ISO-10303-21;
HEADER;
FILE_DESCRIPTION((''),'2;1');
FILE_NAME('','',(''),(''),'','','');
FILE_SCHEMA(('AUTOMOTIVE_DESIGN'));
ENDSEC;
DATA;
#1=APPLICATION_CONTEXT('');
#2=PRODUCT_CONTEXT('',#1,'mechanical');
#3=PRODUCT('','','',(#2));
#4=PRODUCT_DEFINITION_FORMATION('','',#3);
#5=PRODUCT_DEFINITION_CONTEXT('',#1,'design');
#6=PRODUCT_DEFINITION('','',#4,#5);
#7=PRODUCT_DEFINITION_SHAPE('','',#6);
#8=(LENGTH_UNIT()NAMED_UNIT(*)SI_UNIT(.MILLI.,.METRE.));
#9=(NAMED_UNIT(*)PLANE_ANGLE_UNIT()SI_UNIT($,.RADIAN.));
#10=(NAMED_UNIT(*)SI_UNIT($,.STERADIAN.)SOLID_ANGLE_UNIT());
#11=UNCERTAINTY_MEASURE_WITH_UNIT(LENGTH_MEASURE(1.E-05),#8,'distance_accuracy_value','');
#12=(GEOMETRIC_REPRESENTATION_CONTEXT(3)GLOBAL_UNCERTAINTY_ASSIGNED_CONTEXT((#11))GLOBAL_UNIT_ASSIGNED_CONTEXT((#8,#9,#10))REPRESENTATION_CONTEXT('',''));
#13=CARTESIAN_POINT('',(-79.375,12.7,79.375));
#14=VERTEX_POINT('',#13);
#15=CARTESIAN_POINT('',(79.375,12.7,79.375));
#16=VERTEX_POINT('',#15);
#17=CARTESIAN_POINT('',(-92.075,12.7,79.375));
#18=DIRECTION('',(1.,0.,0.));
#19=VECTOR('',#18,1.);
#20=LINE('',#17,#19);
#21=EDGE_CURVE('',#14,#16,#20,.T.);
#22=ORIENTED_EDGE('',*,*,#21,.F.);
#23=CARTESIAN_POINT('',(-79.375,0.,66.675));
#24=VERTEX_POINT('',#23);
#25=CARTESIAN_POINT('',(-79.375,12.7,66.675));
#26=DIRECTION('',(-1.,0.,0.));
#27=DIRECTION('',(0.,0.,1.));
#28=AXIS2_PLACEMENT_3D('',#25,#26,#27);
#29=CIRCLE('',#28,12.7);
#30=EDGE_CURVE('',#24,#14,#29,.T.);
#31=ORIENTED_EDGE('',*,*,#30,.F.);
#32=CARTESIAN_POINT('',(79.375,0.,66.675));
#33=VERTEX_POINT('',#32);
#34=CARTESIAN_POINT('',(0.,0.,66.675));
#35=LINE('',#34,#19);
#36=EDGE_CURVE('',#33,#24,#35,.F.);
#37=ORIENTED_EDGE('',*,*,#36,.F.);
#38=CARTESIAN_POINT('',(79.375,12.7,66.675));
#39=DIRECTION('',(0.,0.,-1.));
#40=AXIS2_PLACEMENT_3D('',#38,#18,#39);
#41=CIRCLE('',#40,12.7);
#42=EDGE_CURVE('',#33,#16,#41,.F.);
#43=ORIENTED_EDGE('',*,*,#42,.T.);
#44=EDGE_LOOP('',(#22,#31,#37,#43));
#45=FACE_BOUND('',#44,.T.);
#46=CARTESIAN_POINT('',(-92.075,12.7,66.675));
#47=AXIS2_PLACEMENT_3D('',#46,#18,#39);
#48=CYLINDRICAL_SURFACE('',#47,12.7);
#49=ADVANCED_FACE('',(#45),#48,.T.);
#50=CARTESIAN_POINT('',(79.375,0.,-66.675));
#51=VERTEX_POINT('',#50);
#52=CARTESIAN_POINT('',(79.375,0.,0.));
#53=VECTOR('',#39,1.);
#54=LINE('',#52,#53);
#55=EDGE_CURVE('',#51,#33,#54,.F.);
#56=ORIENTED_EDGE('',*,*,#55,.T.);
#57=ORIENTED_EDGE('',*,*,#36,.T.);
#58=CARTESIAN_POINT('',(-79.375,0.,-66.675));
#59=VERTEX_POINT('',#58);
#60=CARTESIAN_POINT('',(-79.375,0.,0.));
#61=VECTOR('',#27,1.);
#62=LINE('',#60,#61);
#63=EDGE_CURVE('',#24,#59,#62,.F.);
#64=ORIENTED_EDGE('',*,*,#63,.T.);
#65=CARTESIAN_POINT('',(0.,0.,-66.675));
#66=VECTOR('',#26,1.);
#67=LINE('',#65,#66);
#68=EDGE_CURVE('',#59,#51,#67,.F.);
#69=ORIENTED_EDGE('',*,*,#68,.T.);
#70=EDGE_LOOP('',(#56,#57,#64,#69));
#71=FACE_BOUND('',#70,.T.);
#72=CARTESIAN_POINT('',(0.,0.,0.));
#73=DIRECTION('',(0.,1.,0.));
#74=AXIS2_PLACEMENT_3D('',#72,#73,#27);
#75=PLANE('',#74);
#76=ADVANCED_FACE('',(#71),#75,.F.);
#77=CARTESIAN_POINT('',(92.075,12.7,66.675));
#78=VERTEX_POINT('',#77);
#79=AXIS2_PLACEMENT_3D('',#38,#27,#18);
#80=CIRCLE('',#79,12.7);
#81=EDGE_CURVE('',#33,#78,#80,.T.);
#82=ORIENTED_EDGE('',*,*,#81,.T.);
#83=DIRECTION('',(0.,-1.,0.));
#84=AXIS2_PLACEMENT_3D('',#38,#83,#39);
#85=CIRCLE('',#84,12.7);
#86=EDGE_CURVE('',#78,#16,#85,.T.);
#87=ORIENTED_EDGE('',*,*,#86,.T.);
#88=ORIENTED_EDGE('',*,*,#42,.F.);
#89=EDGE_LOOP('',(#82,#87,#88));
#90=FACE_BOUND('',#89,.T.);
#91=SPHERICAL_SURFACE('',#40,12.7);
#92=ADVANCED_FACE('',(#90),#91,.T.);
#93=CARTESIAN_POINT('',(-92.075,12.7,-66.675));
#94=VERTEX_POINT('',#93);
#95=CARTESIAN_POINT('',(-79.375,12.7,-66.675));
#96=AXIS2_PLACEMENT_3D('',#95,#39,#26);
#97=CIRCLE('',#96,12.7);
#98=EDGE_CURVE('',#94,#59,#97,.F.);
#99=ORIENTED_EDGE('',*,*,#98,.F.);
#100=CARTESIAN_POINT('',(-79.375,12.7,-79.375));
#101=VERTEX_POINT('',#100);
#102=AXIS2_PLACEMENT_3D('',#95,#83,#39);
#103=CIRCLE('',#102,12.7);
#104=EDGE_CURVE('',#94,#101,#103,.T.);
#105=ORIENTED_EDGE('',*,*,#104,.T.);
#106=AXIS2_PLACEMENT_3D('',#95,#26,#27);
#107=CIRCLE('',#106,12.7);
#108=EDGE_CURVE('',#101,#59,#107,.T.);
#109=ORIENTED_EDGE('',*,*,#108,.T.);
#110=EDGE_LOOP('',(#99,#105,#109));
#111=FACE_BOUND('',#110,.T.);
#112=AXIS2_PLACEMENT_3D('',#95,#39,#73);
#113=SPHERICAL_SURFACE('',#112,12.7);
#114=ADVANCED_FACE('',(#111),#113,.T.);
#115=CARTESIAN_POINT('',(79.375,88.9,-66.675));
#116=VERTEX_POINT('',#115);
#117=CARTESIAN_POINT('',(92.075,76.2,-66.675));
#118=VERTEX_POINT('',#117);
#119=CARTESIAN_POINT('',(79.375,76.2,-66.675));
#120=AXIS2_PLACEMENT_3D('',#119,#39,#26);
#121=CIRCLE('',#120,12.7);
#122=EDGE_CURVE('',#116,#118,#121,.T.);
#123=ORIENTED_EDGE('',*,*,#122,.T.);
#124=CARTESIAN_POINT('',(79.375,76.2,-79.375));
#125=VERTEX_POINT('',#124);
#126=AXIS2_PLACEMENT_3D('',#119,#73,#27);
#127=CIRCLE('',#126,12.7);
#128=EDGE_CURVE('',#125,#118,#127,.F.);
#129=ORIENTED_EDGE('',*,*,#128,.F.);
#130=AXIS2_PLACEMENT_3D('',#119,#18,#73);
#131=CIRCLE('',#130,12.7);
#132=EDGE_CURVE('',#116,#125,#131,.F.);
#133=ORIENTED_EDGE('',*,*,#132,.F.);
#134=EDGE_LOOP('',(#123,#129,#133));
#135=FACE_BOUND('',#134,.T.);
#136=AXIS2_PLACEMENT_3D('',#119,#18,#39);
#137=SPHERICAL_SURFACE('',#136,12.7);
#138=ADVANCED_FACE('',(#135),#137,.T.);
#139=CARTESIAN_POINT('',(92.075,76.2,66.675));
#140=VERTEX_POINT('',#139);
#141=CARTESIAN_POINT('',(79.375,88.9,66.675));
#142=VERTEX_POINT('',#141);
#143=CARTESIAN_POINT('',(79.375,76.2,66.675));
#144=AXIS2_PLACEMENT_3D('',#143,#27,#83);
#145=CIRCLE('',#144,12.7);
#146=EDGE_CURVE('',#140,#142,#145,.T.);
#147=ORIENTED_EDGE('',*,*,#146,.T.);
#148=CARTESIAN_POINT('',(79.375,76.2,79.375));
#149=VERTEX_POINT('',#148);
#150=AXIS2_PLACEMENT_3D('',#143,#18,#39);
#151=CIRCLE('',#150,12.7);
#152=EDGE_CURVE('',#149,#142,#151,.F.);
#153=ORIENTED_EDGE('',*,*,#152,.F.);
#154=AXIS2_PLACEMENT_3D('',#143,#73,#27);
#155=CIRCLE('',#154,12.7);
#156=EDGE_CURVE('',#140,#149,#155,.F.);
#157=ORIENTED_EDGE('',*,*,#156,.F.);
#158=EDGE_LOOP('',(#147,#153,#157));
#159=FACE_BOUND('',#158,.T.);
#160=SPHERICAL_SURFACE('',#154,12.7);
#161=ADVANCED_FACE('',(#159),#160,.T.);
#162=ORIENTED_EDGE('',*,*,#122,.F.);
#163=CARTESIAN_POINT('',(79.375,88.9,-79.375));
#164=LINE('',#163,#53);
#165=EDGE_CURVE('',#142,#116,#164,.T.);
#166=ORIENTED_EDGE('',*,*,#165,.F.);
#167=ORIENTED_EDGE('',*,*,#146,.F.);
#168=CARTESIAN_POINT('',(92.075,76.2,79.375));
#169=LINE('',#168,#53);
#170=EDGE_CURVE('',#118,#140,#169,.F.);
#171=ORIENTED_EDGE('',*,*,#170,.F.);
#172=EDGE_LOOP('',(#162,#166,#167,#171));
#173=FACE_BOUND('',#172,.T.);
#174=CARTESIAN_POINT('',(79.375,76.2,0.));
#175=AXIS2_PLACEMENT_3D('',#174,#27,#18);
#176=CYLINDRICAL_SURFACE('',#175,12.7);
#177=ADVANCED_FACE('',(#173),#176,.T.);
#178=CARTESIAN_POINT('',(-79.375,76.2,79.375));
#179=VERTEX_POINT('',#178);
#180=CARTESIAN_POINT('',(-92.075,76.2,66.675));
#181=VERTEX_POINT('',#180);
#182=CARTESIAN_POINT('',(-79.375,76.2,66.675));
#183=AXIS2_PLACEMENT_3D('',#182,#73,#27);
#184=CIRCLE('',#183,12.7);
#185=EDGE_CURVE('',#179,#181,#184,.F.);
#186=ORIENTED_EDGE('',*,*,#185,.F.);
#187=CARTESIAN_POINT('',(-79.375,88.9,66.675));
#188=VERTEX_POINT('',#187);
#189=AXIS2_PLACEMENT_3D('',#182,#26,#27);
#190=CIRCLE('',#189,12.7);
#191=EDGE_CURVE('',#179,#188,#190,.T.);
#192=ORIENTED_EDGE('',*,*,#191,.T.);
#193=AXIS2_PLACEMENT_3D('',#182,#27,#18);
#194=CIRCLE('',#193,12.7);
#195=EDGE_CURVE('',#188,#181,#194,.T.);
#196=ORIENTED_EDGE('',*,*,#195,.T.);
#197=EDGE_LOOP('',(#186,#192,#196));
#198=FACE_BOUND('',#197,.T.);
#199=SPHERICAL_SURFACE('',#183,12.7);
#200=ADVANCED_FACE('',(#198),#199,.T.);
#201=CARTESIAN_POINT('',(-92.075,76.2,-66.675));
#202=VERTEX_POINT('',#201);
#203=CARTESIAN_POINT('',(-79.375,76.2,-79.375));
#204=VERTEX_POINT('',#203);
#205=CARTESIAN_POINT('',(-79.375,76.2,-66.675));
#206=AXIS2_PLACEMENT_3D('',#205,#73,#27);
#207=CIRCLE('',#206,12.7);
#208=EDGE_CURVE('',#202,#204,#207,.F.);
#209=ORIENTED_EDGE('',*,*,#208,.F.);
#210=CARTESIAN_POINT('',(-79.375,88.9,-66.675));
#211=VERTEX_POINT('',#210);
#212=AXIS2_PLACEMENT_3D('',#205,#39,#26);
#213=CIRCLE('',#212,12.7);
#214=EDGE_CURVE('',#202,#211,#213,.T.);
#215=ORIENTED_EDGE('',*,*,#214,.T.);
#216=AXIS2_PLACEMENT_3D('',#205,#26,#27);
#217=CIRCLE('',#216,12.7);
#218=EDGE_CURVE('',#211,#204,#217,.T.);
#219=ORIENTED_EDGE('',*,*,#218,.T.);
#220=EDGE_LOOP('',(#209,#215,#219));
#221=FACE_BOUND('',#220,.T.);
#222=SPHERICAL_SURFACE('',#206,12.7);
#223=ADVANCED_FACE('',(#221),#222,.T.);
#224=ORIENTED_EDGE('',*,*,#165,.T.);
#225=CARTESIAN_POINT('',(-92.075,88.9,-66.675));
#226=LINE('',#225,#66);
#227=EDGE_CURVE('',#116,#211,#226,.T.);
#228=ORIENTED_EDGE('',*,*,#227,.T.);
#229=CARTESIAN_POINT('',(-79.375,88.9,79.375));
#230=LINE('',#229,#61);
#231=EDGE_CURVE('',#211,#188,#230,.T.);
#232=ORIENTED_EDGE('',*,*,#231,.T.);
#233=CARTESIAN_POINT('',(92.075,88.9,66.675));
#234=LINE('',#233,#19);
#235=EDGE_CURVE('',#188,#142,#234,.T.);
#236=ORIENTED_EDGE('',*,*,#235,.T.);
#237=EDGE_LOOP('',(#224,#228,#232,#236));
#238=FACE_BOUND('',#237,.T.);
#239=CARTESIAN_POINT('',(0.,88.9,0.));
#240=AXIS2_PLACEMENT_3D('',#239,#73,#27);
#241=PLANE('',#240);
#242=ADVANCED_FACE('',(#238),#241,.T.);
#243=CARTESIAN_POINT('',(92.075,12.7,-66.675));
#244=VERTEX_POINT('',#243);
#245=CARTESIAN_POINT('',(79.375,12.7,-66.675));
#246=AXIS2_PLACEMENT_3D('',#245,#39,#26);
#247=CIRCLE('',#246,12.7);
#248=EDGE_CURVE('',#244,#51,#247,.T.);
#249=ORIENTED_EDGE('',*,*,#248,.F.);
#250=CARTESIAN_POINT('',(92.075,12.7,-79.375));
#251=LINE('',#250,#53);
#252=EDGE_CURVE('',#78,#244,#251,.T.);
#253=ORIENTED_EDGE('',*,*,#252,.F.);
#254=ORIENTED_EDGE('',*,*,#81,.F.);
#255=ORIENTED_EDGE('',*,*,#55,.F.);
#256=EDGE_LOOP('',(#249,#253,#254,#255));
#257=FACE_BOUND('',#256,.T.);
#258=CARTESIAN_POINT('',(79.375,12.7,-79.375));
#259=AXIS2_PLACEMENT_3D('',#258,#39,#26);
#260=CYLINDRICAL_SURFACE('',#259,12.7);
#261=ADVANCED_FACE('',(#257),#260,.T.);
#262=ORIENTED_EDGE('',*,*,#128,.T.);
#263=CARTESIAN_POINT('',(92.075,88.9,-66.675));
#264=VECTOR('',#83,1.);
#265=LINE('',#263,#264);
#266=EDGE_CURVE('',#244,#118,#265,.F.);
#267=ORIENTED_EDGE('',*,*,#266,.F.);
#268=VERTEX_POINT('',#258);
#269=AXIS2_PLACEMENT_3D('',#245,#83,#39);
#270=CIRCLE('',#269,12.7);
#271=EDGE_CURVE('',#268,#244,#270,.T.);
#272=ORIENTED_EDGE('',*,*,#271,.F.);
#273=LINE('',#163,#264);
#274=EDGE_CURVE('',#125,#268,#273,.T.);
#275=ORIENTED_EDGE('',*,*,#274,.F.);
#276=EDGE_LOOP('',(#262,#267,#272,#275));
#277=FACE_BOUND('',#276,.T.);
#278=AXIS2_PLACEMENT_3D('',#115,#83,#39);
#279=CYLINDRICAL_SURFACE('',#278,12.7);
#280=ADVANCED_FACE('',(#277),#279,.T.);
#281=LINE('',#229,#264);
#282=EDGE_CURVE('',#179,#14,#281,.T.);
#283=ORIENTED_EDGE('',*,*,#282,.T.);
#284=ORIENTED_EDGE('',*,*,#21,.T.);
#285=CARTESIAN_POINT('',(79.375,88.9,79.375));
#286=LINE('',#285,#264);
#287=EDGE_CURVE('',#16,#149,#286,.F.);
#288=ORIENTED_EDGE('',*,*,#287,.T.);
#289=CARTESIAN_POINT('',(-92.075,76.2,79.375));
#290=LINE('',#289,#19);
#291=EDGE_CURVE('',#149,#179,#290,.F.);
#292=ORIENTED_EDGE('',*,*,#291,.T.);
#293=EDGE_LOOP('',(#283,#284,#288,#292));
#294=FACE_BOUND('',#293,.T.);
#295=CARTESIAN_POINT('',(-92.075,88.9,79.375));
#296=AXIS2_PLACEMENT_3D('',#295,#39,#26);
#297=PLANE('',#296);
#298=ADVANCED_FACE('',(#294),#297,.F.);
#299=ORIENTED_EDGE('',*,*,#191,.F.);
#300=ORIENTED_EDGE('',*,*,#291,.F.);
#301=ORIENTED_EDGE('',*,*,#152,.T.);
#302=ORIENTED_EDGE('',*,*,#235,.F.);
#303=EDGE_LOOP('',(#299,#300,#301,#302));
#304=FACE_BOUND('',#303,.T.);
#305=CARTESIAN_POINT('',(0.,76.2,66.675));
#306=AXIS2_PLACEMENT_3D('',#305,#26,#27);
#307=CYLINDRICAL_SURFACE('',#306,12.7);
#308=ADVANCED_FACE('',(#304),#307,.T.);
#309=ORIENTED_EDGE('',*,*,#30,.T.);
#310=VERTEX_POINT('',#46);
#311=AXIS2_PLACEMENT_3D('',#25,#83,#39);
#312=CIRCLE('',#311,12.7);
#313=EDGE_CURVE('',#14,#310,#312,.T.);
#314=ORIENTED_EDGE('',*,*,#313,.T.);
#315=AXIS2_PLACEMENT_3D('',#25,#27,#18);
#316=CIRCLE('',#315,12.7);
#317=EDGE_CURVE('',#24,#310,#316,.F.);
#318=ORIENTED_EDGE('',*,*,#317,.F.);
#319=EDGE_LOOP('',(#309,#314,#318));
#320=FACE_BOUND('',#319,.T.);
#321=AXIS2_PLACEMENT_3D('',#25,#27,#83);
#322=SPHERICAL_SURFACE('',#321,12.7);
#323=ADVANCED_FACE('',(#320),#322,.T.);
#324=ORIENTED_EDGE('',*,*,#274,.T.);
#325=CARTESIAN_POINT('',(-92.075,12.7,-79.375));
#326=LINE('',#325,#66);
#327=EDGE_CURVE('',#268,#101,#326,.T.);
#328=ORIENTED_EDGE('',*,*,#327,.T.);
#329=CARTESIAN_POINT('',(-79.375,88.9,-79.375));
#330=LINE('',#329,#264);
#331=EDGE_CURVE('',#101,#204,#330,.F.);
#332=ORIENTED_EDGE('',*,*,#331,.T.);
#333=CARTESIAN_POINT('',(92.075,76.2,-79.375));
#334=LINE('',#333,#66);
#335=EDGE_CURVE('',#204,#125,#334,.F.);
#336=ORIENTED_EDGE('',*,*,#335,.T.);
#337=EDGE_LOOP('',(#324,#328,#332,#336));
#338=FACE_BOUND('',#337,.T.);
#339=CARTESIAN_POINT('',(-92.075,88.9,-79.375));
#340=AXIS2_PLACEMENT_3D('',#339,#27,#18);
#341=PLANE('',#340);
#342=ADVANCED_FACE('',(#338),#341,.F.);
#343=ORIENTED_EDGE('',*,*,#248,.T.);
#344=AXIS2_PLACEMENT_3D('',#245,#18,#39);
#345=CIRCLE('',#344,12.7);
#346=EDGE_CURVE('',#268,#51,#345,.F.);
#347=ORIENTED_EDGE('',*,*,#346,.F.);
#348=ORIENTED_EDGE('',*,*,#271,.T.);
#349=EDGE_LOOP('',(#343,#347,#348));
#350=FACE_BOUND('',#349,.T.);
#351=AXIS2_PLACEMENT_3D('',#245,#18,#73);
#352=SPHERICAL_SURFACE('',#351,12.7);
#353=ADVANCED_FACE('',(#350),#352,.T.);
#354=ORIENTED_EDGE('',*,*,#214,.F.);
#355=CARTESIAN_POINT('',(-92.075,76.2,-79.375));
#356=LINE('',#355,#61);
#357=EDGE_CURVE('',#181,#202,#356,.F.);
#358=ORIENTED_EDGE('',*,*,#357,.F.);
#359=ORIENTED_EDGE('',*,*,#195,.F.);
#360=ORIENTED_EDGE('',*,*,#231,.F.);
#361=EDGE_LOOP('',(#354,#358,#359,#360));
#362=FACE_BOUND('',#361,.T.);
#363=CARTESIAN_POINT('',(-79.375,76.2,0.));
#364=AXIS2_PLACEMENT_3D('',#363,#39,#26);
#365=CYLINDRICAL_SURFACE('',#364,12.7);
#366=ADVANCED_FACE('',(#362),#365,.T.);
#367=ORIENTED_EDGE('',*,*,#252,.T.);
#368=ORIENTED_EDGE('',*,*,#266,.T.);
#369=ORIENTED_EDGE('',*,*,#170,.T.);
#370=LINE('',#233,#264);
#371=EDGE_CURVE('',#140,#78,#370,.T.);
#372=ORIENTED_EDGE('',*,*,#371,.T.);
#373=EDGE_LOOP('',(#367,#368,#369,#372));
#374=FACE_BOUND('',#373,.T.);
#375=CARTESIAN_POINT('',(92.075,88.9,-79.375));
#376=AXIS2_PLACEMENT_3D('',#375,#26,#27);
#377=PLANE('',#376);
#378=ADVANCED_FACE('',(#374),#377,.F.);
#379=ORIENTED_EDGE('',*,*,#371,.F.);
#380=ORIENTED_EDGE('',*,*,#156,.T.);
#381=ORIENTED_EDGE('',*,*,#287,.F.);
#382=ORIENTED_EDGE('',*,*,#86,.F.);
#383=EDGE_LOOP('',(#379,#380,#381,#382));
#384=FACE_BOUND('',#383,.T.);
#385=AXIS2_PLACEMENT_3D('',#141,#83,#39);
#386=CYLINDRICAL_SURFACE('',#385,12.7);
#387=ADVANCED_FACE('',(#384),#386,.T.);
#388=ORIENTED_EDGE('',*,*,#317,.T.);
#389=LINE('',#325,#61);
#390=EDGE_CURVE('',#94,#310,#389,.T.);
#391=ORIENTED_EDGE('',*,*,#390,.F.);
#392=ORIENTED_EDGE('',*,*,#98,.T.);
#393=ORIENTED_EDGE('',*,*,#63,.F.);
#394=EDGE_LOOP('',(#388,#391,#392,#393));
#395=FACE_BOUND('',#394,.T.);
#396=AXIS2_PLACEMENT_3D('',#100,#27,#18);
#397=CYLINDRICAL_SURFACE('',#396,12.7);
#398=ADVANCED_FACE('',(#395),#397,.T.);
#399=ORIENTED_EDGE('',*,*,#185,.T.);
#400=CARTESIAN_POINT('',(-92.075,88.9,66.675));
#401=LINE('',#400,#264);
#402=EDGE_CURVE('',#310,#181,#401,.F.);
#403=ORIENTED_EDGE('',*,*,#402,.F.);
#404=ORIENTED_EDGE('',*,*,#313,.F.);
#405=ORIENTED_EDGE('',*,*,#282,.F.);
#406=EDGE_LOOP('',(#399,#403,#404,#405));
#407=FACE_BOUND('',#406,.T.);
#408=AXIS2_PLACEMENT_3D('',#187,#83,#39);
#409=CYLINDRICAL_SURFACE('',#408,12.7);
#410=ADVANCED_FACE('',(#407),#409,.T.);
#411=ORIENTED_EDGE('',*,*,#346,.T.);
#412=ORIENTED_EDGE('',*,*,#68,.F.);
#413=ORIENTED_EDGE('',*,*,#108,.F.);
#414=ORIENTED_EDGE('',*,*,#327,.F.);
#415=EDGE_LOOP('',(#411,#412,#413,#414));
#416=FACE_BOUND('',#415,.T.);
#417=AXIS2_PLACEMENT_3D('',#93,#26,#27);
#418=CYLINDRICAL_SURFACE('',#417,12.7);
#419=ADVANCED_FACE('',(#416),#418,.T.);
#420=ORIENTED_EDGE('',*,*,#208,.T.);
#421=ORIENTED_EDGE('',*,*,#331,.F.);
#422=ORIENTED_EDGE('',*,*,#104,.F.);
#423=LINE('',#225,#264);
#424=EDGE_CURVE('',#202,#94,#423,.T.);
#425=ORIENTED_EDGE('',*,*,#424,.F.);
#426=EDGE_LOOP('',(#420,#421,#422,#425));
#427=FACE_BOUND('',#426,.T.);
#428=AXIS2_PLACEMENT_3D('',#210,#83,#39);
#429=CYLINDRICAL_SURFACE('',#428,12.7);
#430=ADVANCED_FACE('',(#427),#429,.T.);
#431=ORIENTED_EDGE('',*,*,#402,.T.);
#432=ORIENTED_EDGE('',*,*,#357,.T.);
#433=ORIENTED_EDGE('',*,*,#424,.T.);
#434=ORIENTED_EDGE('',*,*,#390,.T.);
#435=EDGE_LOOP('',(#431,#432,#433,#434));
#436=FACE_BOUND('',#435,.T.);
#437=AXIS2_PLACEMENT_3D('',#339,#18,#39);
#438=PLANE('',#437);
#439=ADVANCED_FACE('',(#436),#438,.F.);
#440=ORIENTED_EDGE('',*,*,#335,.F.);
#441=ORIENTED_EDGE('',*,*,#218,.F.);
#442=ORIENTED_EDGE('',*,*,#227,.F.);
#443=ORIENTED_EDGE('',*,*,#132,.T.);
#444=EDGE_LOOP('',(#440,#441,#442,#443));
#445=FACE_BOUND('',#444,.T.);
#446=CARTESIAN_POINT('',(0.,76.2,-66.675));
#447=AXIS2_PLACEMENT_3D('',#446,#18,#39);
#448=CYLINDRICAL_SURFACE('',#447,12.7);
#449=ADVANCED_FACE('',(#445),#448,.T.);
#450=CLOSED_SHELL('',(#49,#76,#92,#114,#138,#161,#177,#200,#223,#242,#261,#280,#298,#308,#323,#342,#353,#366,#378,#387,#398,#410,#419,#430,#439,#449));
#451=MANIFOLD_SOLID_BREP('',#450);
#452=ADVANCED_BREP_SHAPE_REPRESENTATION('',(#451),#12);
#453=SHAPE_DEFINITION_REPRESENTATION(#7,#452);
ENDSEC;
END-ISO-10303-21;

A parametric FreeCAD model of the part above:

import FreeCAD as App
import Part
import Sketcher
Q = App.Units.Quantity


def add_polygon(sketch, points):
    """Adds a closed chain of lines whose ends are joined by coincident constraints."""
    first, n = sketch.GeometryCount, len(points)
    for a, b in zip(points, points[1:] + points[:1]):
        sketch.addGeometry(Part.LineSegment(App.Vector(*a, 0), App.Vector(*b, 0)), False)
    for i in range(n):
        sketch.addConstraint(Sketcher.Constraint("Coincident", first + i, 2, first + (i + 1) % n, 1))

doc = App.newDocument("Part")
body = doc.addObject("PartDesign::Body", "Body")

# Sketch on XZ plane
sketch1 = body.newObject("Sketcher::SketchObject", "Sketch")
sketch1.AttachmentSupport = (doc.getObject("XZ_Plane"), [""])
sketch1.MapMode = "FlatFace"
add_polygon(sketch1, [(-92, -79), (-92, 79), (92, 79), (92, -79)])  # lines 0-3
sketch1.addConstraint([
    Sketcher.Constraint("Vertical", 0),
    Sketcher.Constraint("Horizontal", 1),
    Sketcher.Constraint("Vertical", 2),
    Sketcher.Constraint("Horizontal", 3),
    Sketcher.Constraint("Symmetric", 0, 2, 2, 2, -1, 1),
    Sketcher.Constraint("DistanceX", 1, 1, 1, 2, Q("7.25 in")),
    Sketcher.Constraint("DistanceY", 0, 1, 0, 2, Q("6.25 in")),
])
pad1 = body.newObject("PartDesign::Pad", "Pad")
pad1.Profile = sketch1
pad1.Length = Q("3.5 in")
pad1.Reversed = True
doc.recompute()

fillet = body.newObject("PartDesign::Fillet", "Fillet")
fillet.Base = (pad1, ["Edge1"])
fillet.UseAllEdges = True
fillet.Radius = Q("0.5 in")

doc.recompute()
